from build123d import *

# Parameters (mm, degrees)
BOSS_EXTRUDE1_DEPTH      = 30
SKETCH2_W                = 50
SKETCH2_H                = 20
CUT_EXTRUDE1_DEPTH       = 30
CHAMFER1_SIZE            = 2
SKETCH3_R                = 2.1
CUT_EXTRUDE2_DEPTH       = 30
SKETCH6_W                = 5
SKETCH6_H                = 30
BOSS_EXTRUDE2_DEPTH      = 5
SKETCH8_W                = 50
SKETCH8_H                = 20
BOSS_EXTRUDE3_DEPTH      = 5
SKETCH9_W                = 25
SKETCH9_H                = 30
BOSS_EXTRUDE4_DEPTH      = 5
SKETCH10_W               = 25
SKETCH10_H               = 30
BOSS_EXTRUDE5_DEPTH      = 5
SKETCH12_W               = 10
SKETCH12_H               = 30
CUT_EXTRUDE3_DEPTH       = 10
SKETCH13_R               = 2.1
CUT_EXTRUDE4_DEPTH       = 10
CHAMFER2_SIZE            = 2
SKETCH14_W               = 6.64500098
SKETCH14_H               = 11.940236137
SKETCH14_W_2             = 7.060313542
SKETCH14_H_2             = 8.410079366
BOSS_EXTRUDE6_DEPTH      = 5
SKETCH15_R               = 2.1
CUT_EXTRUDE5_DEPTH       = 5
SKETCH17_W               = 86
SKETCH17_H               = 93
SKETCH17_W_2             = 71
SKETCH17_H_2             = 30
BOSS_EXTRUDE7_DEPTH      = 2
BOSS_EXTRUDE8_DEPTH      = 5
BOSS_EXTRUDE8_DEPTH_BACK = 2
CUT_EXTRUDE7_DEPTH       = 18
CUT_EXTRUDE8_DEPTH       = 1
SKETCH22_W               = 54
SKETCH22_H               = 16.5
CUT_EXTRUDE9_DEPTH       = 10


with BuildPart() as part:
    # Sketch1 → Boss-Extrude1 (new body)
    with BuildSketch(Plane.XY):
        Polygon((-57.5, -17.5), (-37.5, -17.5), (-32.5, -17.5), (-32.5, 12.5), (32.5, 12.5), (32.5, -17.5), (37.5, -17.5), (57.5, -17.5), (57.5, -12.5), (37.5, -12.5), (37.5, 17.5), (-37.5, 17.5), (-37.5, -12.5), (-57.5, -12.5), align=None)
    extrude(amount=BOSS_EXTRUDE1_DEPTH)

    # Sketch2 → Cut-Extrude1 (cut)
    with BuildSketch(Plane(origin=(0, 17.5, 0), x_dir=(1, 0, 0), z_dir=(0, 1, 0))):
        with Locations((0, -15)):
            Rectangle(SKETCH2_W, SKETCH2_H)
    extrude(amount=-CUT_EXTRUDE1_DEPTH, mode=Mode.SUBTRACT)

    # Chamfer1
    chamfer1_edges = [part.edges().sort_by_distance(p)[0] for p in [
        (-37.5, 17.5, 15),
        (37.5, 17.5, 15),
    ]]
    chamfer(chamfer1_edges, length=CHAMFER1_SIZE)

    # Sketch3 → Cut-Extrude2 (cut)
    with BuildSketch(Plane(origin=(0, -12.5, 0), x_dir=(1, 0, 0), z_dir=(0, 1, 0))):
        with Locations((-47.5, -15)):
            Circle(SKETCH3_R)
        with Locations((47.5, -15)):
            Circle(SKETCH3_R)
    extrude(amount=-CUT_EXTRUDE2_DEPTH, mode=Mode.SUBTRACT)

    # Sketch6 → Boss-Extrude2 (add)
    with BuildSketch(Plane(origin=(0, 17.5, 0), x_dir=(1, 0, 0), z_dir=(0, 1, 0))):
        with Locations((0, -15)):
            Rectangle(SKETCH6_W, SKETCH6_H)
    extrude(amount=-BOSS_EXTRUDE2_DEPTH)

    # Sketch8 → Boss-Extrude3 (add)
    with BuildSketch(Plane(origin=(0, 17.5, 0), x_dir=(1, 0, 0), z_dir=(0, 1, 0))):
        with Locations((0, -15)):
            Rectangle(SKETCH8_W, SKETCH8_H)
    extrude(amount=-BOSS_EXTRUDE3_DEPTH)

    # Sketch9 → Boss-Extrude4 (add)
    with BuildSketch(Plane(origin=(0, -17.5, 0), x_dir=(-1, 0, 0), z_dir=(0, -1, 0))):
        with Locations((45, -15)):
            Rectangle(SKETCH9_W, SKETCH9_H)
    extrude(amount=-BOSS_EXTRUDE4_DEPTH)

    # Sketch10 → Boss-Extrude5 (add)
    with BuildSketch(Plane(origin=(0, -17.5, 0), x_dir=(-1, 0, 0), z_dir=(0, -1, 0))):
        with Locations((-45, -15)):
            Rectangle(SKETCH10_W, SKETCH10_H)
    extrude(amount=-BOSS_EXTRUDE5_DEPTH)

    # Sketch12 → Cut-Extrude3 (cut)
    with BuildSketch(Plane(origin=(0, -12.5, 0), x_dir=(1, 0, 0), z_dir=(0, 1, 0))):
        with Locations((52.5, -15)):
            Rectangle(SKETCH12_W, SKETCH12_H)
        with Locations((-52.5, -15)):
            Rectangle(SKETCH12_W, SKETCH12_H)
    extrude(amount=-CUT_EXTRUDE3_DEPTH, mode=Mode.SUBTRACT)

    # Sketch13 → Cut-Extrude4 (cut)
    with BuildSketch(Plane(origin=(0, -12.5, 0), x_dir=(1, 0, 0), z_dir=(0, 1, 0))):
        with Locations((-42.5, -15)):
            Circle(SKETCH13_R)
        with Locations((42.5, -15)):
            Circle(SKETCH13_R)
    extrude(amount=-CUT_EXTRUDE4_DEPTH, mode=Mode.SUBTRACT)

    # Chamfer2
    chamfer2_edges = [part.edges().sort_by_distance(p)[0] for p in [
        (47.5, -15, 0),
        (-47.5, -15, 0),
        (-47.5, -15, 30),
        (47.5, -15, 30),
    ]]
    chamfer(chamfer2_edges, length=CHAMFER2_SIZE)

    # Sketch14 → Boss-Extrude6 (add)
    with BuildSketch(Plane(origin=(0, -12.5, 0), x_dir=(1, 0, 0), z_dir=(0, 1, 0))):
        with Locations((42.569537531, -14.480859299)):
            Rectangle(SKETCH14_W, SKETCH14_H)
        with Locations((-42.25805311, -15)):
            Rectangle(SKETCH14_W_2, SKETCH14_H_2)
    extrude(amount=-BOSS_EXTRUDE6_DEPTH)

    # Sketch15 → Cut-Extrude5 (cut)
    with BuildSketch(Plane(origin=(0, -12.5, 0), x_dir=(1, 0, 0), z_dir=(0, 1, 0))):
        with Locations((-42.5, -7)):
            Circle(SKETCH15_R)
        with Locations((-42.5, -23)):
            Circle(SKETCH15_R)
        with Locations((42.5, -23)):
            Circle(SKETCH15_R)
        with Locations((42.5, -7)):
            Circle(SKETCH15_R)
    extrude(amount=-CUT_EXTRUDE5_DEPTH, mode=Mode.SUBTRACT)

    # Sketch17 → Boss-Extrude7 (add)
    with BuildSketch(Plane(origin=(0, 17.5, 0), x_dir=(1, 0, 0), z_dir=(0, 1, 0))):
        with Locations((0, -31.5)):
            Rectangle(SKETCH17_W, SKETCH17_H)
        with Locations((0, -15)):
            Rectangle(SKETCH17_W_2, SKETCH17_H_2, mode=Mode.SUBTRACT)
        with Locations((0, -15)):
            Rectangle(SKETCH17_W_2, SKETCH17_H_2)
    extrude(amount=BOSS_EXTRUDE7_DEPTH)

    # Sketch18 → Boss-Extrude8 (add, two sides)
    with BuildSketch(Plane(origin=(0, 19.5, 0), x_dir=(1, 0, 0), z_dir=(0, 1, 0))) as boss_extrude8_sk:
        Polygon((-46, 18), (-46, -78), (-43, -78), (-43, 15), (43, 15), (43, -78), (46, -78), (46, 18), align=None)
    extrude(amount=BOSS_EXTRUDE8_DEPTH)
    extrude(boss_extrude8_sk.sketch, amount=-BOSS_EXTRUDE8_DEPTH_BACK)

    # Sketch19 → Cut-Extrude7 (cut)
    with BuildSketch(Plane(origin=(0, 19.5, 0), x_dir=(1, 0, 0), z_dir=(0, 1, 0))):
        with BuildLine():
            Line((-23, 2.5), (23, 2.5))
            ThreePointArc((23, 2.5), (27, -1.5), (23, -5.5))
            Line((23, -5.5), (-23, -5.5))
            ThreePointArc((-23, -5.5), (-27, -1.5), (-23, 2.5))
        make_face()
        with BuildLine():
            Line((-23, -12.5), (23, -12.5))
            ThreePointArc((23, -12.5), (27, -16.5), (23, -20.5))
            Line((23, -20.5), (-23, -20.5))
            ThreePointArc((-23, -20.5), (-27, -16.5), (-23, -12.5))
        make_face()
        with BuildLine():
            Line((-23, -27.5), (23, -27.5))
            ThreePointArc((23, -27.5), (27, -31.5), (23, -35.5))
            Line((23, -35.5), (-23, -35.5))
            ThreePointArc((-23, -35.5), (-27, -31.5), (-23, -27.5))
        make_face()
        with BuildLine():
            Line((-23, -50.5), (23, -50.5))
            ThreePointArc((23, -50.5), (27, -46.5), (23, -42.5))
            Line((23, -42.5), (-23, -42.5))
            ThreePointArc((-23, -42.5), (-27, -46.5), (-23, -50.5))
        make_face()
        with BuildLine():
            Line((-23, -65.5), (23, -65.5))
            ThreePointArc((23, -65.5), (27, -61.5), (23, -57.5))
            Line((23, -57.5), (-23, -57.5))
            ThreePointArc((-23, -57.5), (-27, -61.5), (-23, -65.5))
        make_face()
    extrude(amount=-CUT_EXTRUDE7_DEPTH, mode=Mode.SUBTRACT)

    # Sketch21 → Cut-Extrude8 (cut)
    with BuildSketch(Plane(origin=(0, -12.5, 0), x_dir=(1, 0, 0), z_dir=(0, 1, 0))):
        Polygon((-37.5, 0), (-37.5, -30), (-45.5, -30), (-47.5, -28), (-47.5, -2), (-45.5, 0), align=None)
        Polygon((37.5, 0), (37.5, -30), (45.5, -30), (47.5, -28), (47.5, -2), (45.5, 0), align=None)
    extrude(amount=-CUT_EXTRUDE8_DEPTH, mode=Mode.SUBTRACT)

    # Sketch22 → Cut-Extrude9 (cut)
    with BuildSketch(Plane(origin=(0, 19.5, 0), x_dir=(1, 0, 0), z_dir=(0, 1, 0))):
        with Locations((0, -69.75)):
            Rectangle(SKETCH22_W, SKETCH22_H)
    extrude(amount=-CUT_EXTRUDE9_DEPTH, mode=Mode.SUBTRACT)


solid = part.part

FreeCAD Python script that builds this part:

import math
import FreeCAD as App
import Part
import Sketcher

V = App.Vector
Q = App.Units.Quantity


def edges_at(feature, points):
    """Names of the edges that pass closest to the given points."""
    edges = feature.Shape.Edges
    near = lambda p: min(range(len(edges)), key=lambda i: edges[i].distToShape(Part.Vertex(*p))[0])
    return sorted({f"Edge{near(p) + 1}" for p in points})


def add_polygon(sketch, points):
    """Adds a closed chain of lines whose ends are joined by coincident constraints."""
    first, n = sketch.GeometryCount, len(points)
    for a, b in zip(points, points[1:] + points[:1]):
        sketch.addGeometry(Part.LineSegment(App.Vector(*a, 0), App.Vector(*b, 0)), False)
    for i in range(n):
        sketch.addConstraint(Sketcher.Constraint("Coincident", first + i, 2, first + (i + 1) % n, 1))

doc = App.newDocument("Part")
body = doc.addObject("PartDesign::Body", "Body")

# Sketch on XY plane
sketch1 = doc.addObject("Sketcher::SketchObject", "Sketch")
body.addObject(sketch1)
sketch1.AttachmentSupport = (doc.XY_Plane, [""])
sketch1.MapMode = "FlatFace"
add_polygon(sketch1, [(-58, -18), (-32, -18), (-32, 12), (32, 12), (32, -18), (58, -18), (58, -12), (38, -12), (38, 18), (-38, 18), (-38, -12), (-58, -12)])  # lines 0-11
sketch1.addConstraint(Sketcher.Constraint("Horizontal", 0))
sketch1.addConstraint(Sketcher.Constraint("Vertical", 1))
sketch1.addConstraint(Sketcher.Constraint("Horizontal", 2))
sketch1.addConstraint(Sketcher.Constraint("Vertical", 3))
sketch1.addConstraint(Sketcher.Constraint("Horizontal", 4))
sketch1.addConstraint(Sketcher.Constraint("Vertical", 5))
sketch1.addConstraint(Sketcher.Constraint("Horizontal", 6))
sketch1.addConstraint(Sketcher.Constraint("Vertical", 7))
sketch1.addConstraint(Sketcher.Constraint("Horizontal", 8))
sketch1.addConstraint(Sketcher.Constraint("Vertical", 9))
sketch1.addConstraint(Sketcher.Constraint("Horizontal", 10))
sketch1.addConstraint(Sketcher.Constraint("Vertical", 11))
sketch1.addConstraint(Sketcher.Constraint("Symmetric", 0, 2, 3, 2, -2))
sketch1.addConstraint(Sketcher.Constraint("Symmetric", 6, 2, 9, 2, -2))
sketch1.addConstraint(Sketcher.Constraint("Equal", 0, 4))
sketch1.addConstraint(Sketcher.Constraint("Equal", 3, 7))
sketch1.addConstraint(Sketcher.Constraint("DistanceX", 0, 1, 0, 2, Q("25 mm")))
sketch1.addConstraint(Sketcher.Constraint("DistanceX", 2, 1, 2, 2, Q("65 mm")))
sketch1.addConstraint(Sketcher.Constraint("DistanceX", 6, 2, 6, 1, Q("20 mm")))
sketch1.addConstraint(Sketcher.Constraint("DistanceY", 1, 1, 1, 2, Q("30 mm")))
sketch1.addConstraint(Sketcher.Constraint("DistanceY", 5, 1, 5, 2, Q("5 mm")))
sketch1.addConstraint(Sketcher.Constraint("DistanceY", 0, 2, -1, 1, Q("17.5 mm")))
pad1 = doc.addObject("PartDesign::Pad", "Pad")
body.addObject(pad1)
pad1.Profile = sketch1
pad1.Length = 30

# Sketch on XZ plane
sketch2 = doc.addObject("Sketcher::SketchObject", "Sketch001")
body.addObject(sketch2)
sketch2.AttachmentSupport = (doc.XZ_Plane, [""])
sketch2.MapMode = "FlatFace"
sketch2.AttachmentOffset = App.Placement(V(0, 0, -17.5), App.Rotation())
add_polygon(sketch2, [(-25, 5), (-25, 25), (25, 25), (25, 5)])  # lines 0-3
sketch2.addConstraint(Sketcher.Constraint("Vertical", 0))
sketch2.addConstraint(Sketcher.Constraint("Horizontal", 1))
sketch2.addConstraint(Sketcher.Constraint("Vertical", 2))
sketch2.addConstraint(Sketcher.Constraint("Horizontal", 3))
sketch2.addConstraint(Sketcher.Constraint("DistanceX", 1, 1, 1, 2, Q("50 mm")))
sketch2.addConstraint(Sketcher.Constraint("DistanceY", 0, 1, 0, 2, Q("20 mm")))
sketch2.addConstraint(Sketcher.Constraint("DistanceX", 0, 2, -1, 1, Q("25 mm")))
sketch2.addConstraint(Sketcher.Constraint("DistanceY", -1, 1, 0, 2, Q("25 mm")))
pocket1 = doc.addObject("PartDesign::Pocket", "Pocket")
body.addObject(pocket1)
pocket1.Profile = sketch2
pocket1.Length = 30
pocket1.Reversed = True
doc.recompute()

chamfer = doc.addObject("PartDesign::Chamfer", "Chamfer")
body.addObject(chamfer)
chamfer.Base = (pocket1, edges_at(pocket1, [(-37.5, 17.5, 15), (37.5, 17.5, 15)]))
chamfer.Size = 2

# Sketch on XZ plane
sketch3 = doc.addObject("Sketcher::SketchObject", "Sketch002")
body.addObject(sketch3)
sketch3.AttachmentSupport = (doc.XZ_Plane, [""])
sketch3.MapMode = "FlatFace"
sketch3.AttachmentOffset = App.Placement(V(0, 0, 12.5), App.Rotation())
sketch3.addGeometry(Part.Circle(V(-47.5, 15, 0), V(0, 0, 1), 2.1), False)
sketch3.addGeometry(Part.Circle(V(47.5, 15, 0), V(0, 0, 1), 2.1), False)
sketch3.addConstraint(Sketcher.Constraint("Equal", 0, 1))
sketch3.addConstraint(Sketcher.Constraint("Symmetric", 0, 3, 1, 3, -2))
sketch3.addConstraint(Sketcher.Constraint("Diameter", 0, Q("4.2 mm")))
sketch3.addConstraint(Sketcher.Constraint("DistanceY", -1, 1, 0, 3, Q("15 mm")))
sketch3.addConstraint(Sketcher.Constraint("DistanceX", 0, 3, 1, 3, Q("95 mm")))
pocket2 = doc.addObject("PartDesign::Pocket", "Pocket001")
body.addObject(pocket2)
pocket2.Profile = sketch3
pocket2.Length = 30
pocket2.Reversed = True

# Sketch on XZ plane
sketch4 = doc.addObject("Sketcher::SketchObject", "Sketch003")
body.addObject(sketch4)
sketch4.AttachmentSupport = (doc.XZ_Plane, [""])
sketch4.MapMode = "FlatFace"
sketch4.AttachmentOffset = App.Placement(V(0, 0, -17.5), App.Rotation())
add_polygon(sketch4, [(-2, 0), (-2, 30), (2, 30), (2, 0)])  # lines 0-3
sketch4.addConstraint(Sketcher.Constraint("Vertical", 0))
sketch4.addConstraint(Sketcher.Constraint("Horizontal", 1))
sketch4.addConstraint(Sketcher.Constraint("Vertical", 2))
sketch4.addConstraint(Sketcher.Constraint("Horizontal", 3))
sketch4.addConstraint(Sketcher.Constraint("Symmetric", 2, 2, 3, 2, -1, 1))
sketch4.addConstraint(Sketcher.Constraint("DistanceX", 1, 1, 1, 2, Q("5 mm")))
sketch4.addConstraint(Sketcher.Constraint("DistanceY", 0, 1, 0, 2, Q("30 mm")))
pad2 = doc.addObject("PartDesign::Pad", "Pad001")
body.addObject(pad2)
pad2.Profile = sketch4
pad2.Length = 5

# Sketch on XZ plane
sketch5 = doc.addObject("Sketcher::SketchObject", "Sketch004")
body.addObject(sketch5)
sketch5.AttachmentSupport = (doc.XZ_Plane, [""])
sketch5.MapMode = "FlatFace"
sketch5.AttachmentOffset = App.Placement(V(0, 0, -17.5), App.Rotation())
add_polygon(sketch5, [(-25, 5), (-25, 25), (25, 25), (25, 5)])  # lines 0-3
sketch5.addConstraint(Sketcher.Constraint("Vertical", 0))
sketch5.addConstraint(Sketcher.Constraint("Horizontal", 1))
sketch5.addConstraint(Sketcher.Constraint("Vertical", 2))
sketch5.addConstraint(Sketcher.Constraint("Horizontal", 3))
sketch5.addConstraint(Sketcher.Constraint("DistanceX", 1, 1, 1, 2, Q("50 mm")))
sketch5.addConstraint(Sketcher.Constraint("DistanceY", 0, 1, 0, 2, Q("20 mm")))
sketch5.addConstraint(Sketcher.Constraint("DistanceX", 0, 2, -1, 1, Q("25 mm")))
sketch5.addConstraint(Sketcher.Constraint("DistanceY", -1, 1, 0, 2, Q("25 mm")))
pad3 = doc.addObject("PartDesign::Pad", "Pad002")
body.addObject(pad3)
pad3.Profile = sketch5
pad3.Length = 5

# Sketch on XZ plane
sketch6 = doc.addObject("Sketcher::SketchObject", "Sketch005")
body.addObject(sketch6)
sketch6.AttachmentSupport = (doc.XZ_Plane, [""])
sketch6.MapMode = "FlatFace"
sketch6.AttachmentOffset = App.Placement(V(0, 0, 17.5), App.Rotation())
add_polygon(sketch6, [(-32, 0), (-32, 30), (-58, 30), (-58, 0)])  # lines 0-3
sketch6.addConstraint(Sketcher.Constraint("Vertical", 0))
sketch6.addConstraint(Sketcher.Constraint("Horizontal", 1))
sketch6.addConstraint(Sketcher.Constraint("Vertical", 2))
sketch6.addConstraint(Sketcher.Constraint("Horizontal", 3))
sketch6.addConstraint(Sketcher.Constraint("PointOnObject", 2, 2, -1))
sketch6.addConstraint(Sketcher.Constraint("DistanceX", 1, 2, 1, 1, Q("25 mm")))
sketch6.addConstraint(Sketcher.Constraint("DistanceY", 0, 1, 0, 2, Q("30 mm")))
sketch6.addConstraint(Sketcher.Constraint("DistanceX", 0, 2, -1, 1, Q("32.5 mm")))
pad4 = doc.addObject("PartDesign::Pad", "Pad003")
body.addObject(pad4)
pad4.Profile = sketch6
pad4.Length = 5
pad4.Reversed = True

# Sketch on XZ plane
sketch7 = doc.addObject("Sketcher::SketchObject", "Sketch006")
body.addObject(sketch7)
sketch7.AttachmentSupport = (doc.XZ_Plane, [""])
sketch7.MapMode = "FlatFace"
sketch7.AttachmentOffset = App.Placement(V(0, 0, 17.5), App.Rotation())
add_polygon(sketch7, [(58, 0), (58, 30), (32, 30), (32, 0)])  # lines 0-3
sketch7.addConstraint(Sketcher.Constraint("Vertical", 0))
sketch7.addConstraint(Sketcher.Constraint("Horizontal", 1))
sketch7.addConstraint(Sketcher.Constraint("Vertical", 2))
sketch7.addConstraint(Sketcher.Constraint("Horizontal", 3))
sketch7.addConstraint(Sketcher.Constraint("PointOnObject", 2, 2, -1))
sketch7.addConstraint(Sketcher.Constraint("DistanceX", 1, 2, 1, 1, Q("25 mm")))
sketch7.addConstraint(Sketcher.Constraint("DistanceY", 0, 1, 0, 2, Q("30 mm")))
sketch7.addConstraint(Sketcher.Constraint("DistanceX", -1, 1, 0, 2, Q("57.5 mm")))
pad5 = doc.addObject("PartDesign::Pad", "Pad004")
body.addObject(pad5)
pad5.Profile = sketch7
pad5.Length = 5
pad5.Reversed = True

# Sketch on XZ plane
sketch8 = doc.addObject("Sketcher::SketchObject", "Sketch007")
body.addObject(sketch8)
sketch8.AttachmentSupport = (doc.XZ_Plane, [""])
sketch8.MapMode = "FlatFace"
sketch8.AttachmentOffset = App.Placement(V(0, 0, 12.5), App.Rotation())
add_polygon(sketch8, [(48, 0), (48, 30), (58, 30), (58, 0)])  # lines 0-3
add_polygon(sketch8, [(-58, 0), (-58, 30), (-48, 30), (-48, 0)])  # lines 4-7
sketch8.addConstraint(Sketcher.Constraint("Vertical", 0))
sketch8.addConstraint(Sketcher.Constraint("Horizontal", 1))
sketch8.addConstraint(Sketcher.Constraint("Vertical", 2))
sketch8.addConstraint(Sketcher.Constraint("Horizontal", 3))
sketch8.addConstraint(Sketcher.Constraint("Vertical", 4))
sketch8.addConstraint(Sketcher.Constraint("Horizontal", 5))
sketch8.addConstraint(Sketcher.Constraint("Vertical", 6))
sketch8.addConstraint(Sketcher.Constraint("Horizontal", 7))
sketch8.addConstraint(Sketcher.Constraint("Symmetric", 3, 2, 6, 2, -1, 1))
sketch8.addConstraint(Sketcher.Constraint("Symmetric", 1, 2, 4, 2, -2))
sketch8.addConstraint(Sketcher.Constraint("PointOnObject", 2, 2, -1))
sketch8.addConstraint(Sketcher.Constraint("DistanceX", 1, 1, 1, 2, Q("10 mm")))
sketch8.addConstraint(Sketcher.Constraint("DistanceY", 0, 1, 0, 2, Q("30 mm")))
sketch8.addConstraint(Sketcher.Constraint("DistanceX", 4, 2, 0, 2, Q("105 mm")))
pocket3 = doc.addObject("PartDesign::Pocket", "Pocket002")
body.addObject(pocket3)
pocket3.Profile = sketch8
pocket3.Length = 10
pocket3.Reversed = True

# Sketch on XZ plane
sketch9 = doc.addObject("Sketcher::SketchObject", "Sketch008")
body.addObject(sketch9)
sketch9.AttachmentSupport = (doc.XZ_Plane, [""])
sketch9.MapMode = "FlatFace"
sketch9.AttachmentOffset = App.Placement(V(0, 0, 12.5), App.Rotation())
sketch9.addGeometry(Part.Circle(V(-42.5, 15, 0), V(0, 0, 1), 2.1), False)
sketch9.addGeometry(Part.Circle(V(42.5, 15, 0), V(0, 0, 1), 2.1), False)
sketch9.addConstraint(Sketcher.Constraint("Equal", 0, 1))
sketch9.addConstraint(Sketcher.Constraint("Symmetric", 0, 3, 1, 3, -2))
sketch9.addConstraint(Sketcher.Constraint("Diameter", 0, Q("4.2 mm")))
sketch9.addConstraint(Sketcher.Constraint("DistanceY", -1, 1, 0, 3, Q("15 mm")))
sketch9.addConstraint(Sketcher.Constraint("DistanceX", 0, 3, 1, 3, Q("85 mm")))
pocket4 = doc.addObject("PartDesign::Pocket", "Pocket003")
body.addObject(pocket4)
pocket4.Profile = sketch9
pocket4.Length = 10
pocket4.Reversed = True
doc.recompute()

chamfer2 = doc.addObject("PartDesign::Chamfer", "Chamfer001")
body.addObject(chamfer2)
chamfer2.Base = (pocket4, edges_at(pocket4, [
    (47.5, -15, 0),
    (-47.5, -15, 0),
    (-47.5, -15, 30),
    (47.5, -15, 30),
]))
chamfer2.Size = 2

# Sketch on XZ plane
sketch10 = doc.addObject("Sketcher::SketchObject", "Sketch009")
body.addObject(sketch10)
sketch10.AttachmentSupport = (doc.XZ_Plane, [""])
sketch10.MapMode = "FlatFace"
sketch10.AttachmentOffset = App.Placement(V(0, 0, 12.5), App.Rotation())
add_polygon(sketch10, [(39, 9), (39, 20), (46, 20), (46, 9)])  # lines 0-3
add_polygon(sketch10, [(-46, 11), (-46, 19), (-39, 19), (-39, 11)])  # lines 4-7
sketch10.addConstraint(Sketcher.Constraint("Vertical", 0))
sketch10.addConstraint(Sketcher.Constraint("Horizontal", 1))
sketch10.addConstraint(Sketcher.Constraint("Vertical", 2))
sketch10.addConstraint(Sketcher.Constraint("Horizontal", 3))
sketch10.addConstraint(Sketcher.Constraint("Vertical", 4))
sketch10.addConstraint(Sketcher.Constraint("Horizontal", 5))
sketch10.addConstraint(Sketcher.Constraint("Vertical", 6))
sketch10.addConstraint(Sketcher.Constraint("Horizontal", 7))
sketch10.addConstraint(Sketcher.Constraint("DistanceX", 1, 1, 1, 2, Q("6.645001 mm")))
sketch10.addConstraint(Sketcher.Constraint("DistanceY", 4, 1, 4, 2, Q("8.410079 mm")))
sketch10.addConstraint(Sketcher.Constraint("DistanceY", 3, 2, 4, 2, Q("10.694298 mm")))
sketch10.addConstraint(Sketcher.Constraint("DistanceX", 5, 1, 5, 2, Q("7.060314 mm")))
sketch10.addConstraint(Sketcher.Constraint("DistanceY", 0, 1, 0, 2, Q("11.940236 mm")))
sketch10.addConstraint(Sketcher.Constraint("DistanceX", -1, 1, 1, 2, Q("45.892038 mm")))
sketch10.addConstraint(Sketcher.Constraint("DistanceY", -1, 1, 2, 2, Q("8.510741 mm")))
sketch10.addConstraint(Sketcher.Constraint("DistanceX", 4, 2, -1, 1, Q("45.78821 mm")))
pad6 = doc.addObject("PartDesign::Pad", "Pad005")
body.addObject(pad6)
pad6.Profile = sketch10
pad6.Length = 5

# Sketch on XZ plane
sketch11 = doc.addObject("Sketcher::SketchObject", "Sketch010")
body.addObject(sketch11)
sketch11.AttachmentSupport = (doc.XZ_Plane, [""])
sketch11.MapMode = "FlatFace"
sketch11.AttachmentOffset = App.Placement(V(0, 0, 12.5), App.Rotation())
sketch11.addGeometry(Part.Circle(V(-42.5, 7, 0), V(0, 0, 1), 2.1), False)
sketch11.addGeometry(Part.Circle(V(-42.5, 23, 0), V(0, 0, 1), 2.1), False)
sketch11.addGeometry(Part.Circle(V(42.5, 23, 0), V(0, 0, 1), 2.1), False)
sketch11.addGeometry(Part.Circle(V(42.5, 7, 0), V(0, 0, 1), 2.1), False)
sketch11.addConstraint(Sketcher.Constraint("Equal", 0, 1))
sketch11.addConstraint(Sketcher.Constraint("Equal", 1, 2))
sketch11.addConstraint(Sketcher.Constraint("Equal", 2, 3))
sketch11.addConstraint(Sketcher.Constraint("Symmetric", 1, 3, 2, 3, -2))
sketch11.addConstraint(Sketcher.Constraint("Symmetric", 0, 3, 3, 3, -2))
sketch11.addConstraint(Sketcher.Constraint("Vertical", 0, 3, 1, 3))
sketch11.addConstraint(Sketcher.Constraint("Diameter", 0, Q("4.2 mm")))
sketch11.addConstraint(Sketcher.Constraint("DistanceY", -1, 1, 0, 3, Q("7 mm")))
sketch11.addConstraint(Sketcher.Constraint("DistanceY", -1, 1, 1, 3, Q("23 mm")))
sketch11.addConstraint(Sketcher.Constraint("DistanceX", 1, 3, 2, 3, Q("85 mm")))
pocket5 = doc.addObject("PartDesign::Pocket", "Pocket004")
body.addObject(pocket5)
pocket5.Profile = sketch11
pocket5.Length = 5
pocket5.Reversed = True

# Sketch on XZ plane
sketch12 = doc.addObject("Sketcher::SketchObject", "Sketch011")
body.addObject(sketch12)
sketch12.AttachmentSupport = (doc.XZ_Plane, [""])
sketch12.MapMode = "FlatFace"
sketch12.AttachmentOffset = App.Placement(V(0, 0, -17.5), App.Rotation())
add_polygon(sketch12, [(-43, -15), (-43, 78), (43, 78), (43, -15)])  # lines 0-3
sketch12.addConstraint(Sketcher.Constraint("Vertical", 0))
sketch12.addConstraint(Sketcher.Constraint("Horizontal", 1))
sketch12.addConstraint(Sketcher.Constraint("Vertical", 2))
sketch12.addConstraint(Sketcher.Constraint("Horizontal", 3))
sketch12.addConstraint(Sketcher.Constraint("DistanceX", 1, 1, 1, 2, Q("86 mm")))
sketch12.addConstraint(Sketcher.Constraint("DistanceY", 0, 1, 0, 2, Q("93 mm")))
sketch12.addConstraint(Sketcher.Constraint("DistanceX", 0, 2, -1, 1, Q("43 mm")))
sketch12.addConstraint(Sketcher.Constraint("DistanceY", -1, 1, 0, 2, Q("78 mm")))
pad7 = doc.addObject("PartDesign::Pad", "Pad006")
body.addObject(pad7)
pad7.Profile = sketch12
pad7.Length = 2
pad7.Reversed = True

# Sketch on XZ plane
sketch13 = doc.addObject("Sketcher::SketchObject", "Sketch012")
body.addObject(sketch13)
sketch13.AttachmentSupport = (doc.XZ_Plane, [""])
sketch13.MapMode = "FlatFace"
sketch13.AttachmentOffset = App.Placement(V(0, 0, -19.5), App.Rotation())
add_polygon(sketch13, [(-46, -18), (-46, 78), (-43, 78), (-43, -15), (43, -15), (43, 78), (46, 78), (46, -18)])  # lines 0-7
sketch13.addConstraint(Sketcher.Constraint("Vertical", 0))
sketch13.addConstraint(Sketcher.Constraint("Horizontal", 1))
sketch13.addConstraint(Sketcher.Constraint("Vertical", 2))
sketch13.addConstraint(Sketcher.Constraint("Horizontal", 3))
sketch13.addConstraint(Sketcher.Constraint("Vertical", 4))
sketch13.addConstraint(Sketcher.Constraint("Horizontal", 5))
sketch13.addConstraint(Sketcher.Constraint("Vertical", 6))
sketch13.addConstraint(Sketcher.Constraint("Horizontal", 7))
sketch13.addConstraint(Sketcher.Constraint("Symmetric", 1, 2, 4, 2, -2))
sketch13.addConstraint(Sketcher.Constraint("Equal", 1, 5))
sketch13.addConstraint(Sketcher.Constraint("DistanceX", 1, 1, 1, 2, Q("3 mm")))
sketch13.addConstraint(Sketcher.Constraint("DistanceX", 3, 1, 3, 2, Q("86 mm")))
sketch13.addConstraint(Sketcher.Constraint("DistanceY", 0, 1, 0, 2, Q("96 mm")))
sketch13.addConstraint(Sketcher.Constraint("DistanceY", 2, 2, 2, 1, Q("93 mm")))
sketch13.addConstraint(Sketcher.Constraint("DistanceY", -1, 1, 0, 2, Q("78 mm")))
pad8 = doc.addObject("PartDesign::Pad", "Pad007")
body.addObject(pad8)
pad8.Profile = sketch13
pad8.Type = "TwoLengths"
pad8.Length = 5
pad8.Length2 = 2
pad8.Reversed = True

# Sketch on XZ plane
sketch14 = doc.addObject("Sketcher::SketchObject", "Sketch013")
body.addObject(sketch14)
sketch14.AttachmentSupport = (doc.XZ_Plane, [""])
sketch14.MapMode = "FlatFace"
sketch14.AttachmentOffset = App.Placement(V(0, 0, -19.5), App.Rotation())
sketch14.addGeometry(Part.LineSegment(V(23, -2.5, 0), V(-23, -2.5, 0)), False)
sketch14.addGeometry(Part.ArcOfCircle(Part.Circle(V(-23, 1.5, 0), V(0, 0, 1), 4), math.radians(90), math.radians(270)), False)
sketch14.addGeometry(Part.LineSegment(V(-23, 5.5, 0), V(23, 5.5, 0)), False)
sketch14.addGeometry(Part.ArcOfCircle(Part.Circle(V(23, 1.5, 0), V(0, 0, 1), 4), math.radians(-90), math.radians(90)), False)
sketch14.addGeometry(Part.LineSegment(V(23, 12.5, 0), V(-23, 12.5, 0)), False)
sketch14.addGeometry(Part.ArcOfCircle(Part.Circle(V(-23, 16.5, 0), V(0, 0, 1), 4), math.radians(90), math.radians(270)), False)
sketch14.addGeometry(Part.LineSegment(V(-23, 20.5, 0), V(23, 20.5, 0)), False)
sketch14.addGeometry(Part.ArcOfCircle(Part.Circle(V(23, 16.5, 0), V(0, 0, 1), 4), math.radians(-90), math.radians(90)), False)
sketch14.addGeometry(Part.LineSegment(V(23, 27.5, 0), V(-23, 27.5, 0)), False)
sketch14.addGeometry(Part.ArcOfCircle(Part.Circle(V(-23, 31.5, 0), V(0, 0, 1), 4), math.radians(90), math.radians(270)), False)
sketch14.addGeometry(Part.LineSegment(V(-23, 35.5, 0), V(23, 35.5, 0)), False)
sketch14.addGeometry(Part.ArcOfCircle(Part.Circle(V(23, 31.5, 0), V(0, 0, 1), 4), math.radians(-90), math.radians(90)), False)
sketch14.addGeometry(Part.LineSegment(V(-23, 50.5, 0), V(23, 50.5, 0)), False)
sketch14.addGeometry(Part.ArcOfCircle(Part.Circle(V(23, 46.5, 0), V(0, 0, 1), 4), math.radians(-90), math.radians(90)), False)
sketch14.addGeometry(Part.LineSegment(V(23, 42.5, 0), V(-23, 42.5, 0)), False)
sketch14.addGeometry(Part.ArcOfCircle(Part.Circle(V(-23, 46.5, 0), V(0, 0, 1), 4), math.radians(90), math.radians(270)), False)
sketch14.addGeometry(Part.LineSegment(V(-23, 65.5, 0), V(23, 65.5, 0)), False)
sketch14.addGeometry(Part.ArcOfCircle(Part.Circle(V(23, 61.5, 0), V(0, 0, 1), 4), math.radians(-90), math.radians(90)), False)
sketch14.addGeometry(Part.LineSegment(V(23, 57.5, 0), V(-23, 57.5, 0)), False)
sketch14.addGeometry(Part.ArcOfCircle(Part.Circle(V(-23, 61.5, 0), V(0, 0, 1), 4), math.radians(90), math.radians(270)), False)
sketch14.addConstraint(Sketcher.Constraint("Tangent", 0, 2, 1, 2))
sketch14.addConstraint(Sketcher.Constraint("Tangent", 1, 1, 2, 1))
sketch14.addConstraint(Sketcher.Constraint("Tangent", 2, 2, 3, 2))
sketch14.addConstraint(Sketcher.Constraint("Tangent", 3, 1, 0, 1))
sketch14.addConstraint(Sketcher.Constraint("Tangent", 4, 2, 5, 2))
sketch14.addConstraint(Sketcher.Constraint("Tangent", 5, 1, 6, 1))
sketch14.addConstraint(Sketcher.Constraint("Tangent", 6, 2, 7, 2))
sketch14.addConstraint(Sketcher.Constraint("Tangent", 7, 1, 4, 1))
sketch14.addConstraint(Sketcher.Constraint("Tangent", 8, 2, 9, 2))
sketch14.addConstraint(Sketcher.Constraint("Tangent", 9, 1, 10, 1))
sketch14.addConstraint(Sketcher.Constraint("Tangent", 10, 2, 11, 2))
sketch14.addConstraint(Sketcher.Constraint("Tangent", 11, 1, 8, 1))
sketch14.addConstraint(Sketcher.Constraint("Tangent", 12, 2, 13, 2))
sketch14.addConstraint(Sketcher.Constraint("Tangent", 13, 1, 14, 1))
sketch14.addConstraint(Sketcher.Constraint("Tangent", 14, 2, 15, 2))
sketch14.addConstraint(Sketcher.Constraint("Tangent", 15, 1, 12, 1))
sketch14.addConstraint(Sketcher.Constraint("Tangent", 16, 2, 17, 2))
sketch14.addConstraint(Sketcher.Constraint("Tangent", 17, 1, 18, 1))
sketch14.addConstraint(Sketcher.Constraint("Tangent", 18, 2, 19, 2))
sketch14.addConstraint(Sketcher.Constraint("Tangent", 19, 1, 16, 1))
sketch14.addConstraint(Sketcher.Constraint("Horizontal", 0))
sketch14.addConstraint(Sketcher.Constraint("Horizontal", 2))
sketch14.addConstraint(Sketcher.Constraint("Horizontal", 4))
sketch14.addConstraint(Sketcher.Constraint("Horizontal", 6))
sketch14.addConstraint(Sketcher.Constraint("Horizontal", 8))
sketch14.addConstraint(Sketcher.Constraint("Horizontal", 10))
sketch14.addConstraint(Sketcher.Constraint("Horizontal", 12))
sketch14.addConstraint(Sketcher.Constraint("Horizontal", 14))
sketch14.addConstraint(Sketcher.Constraint("Horizontal", 16))
sketch14.addConstraint(Sketcher.Constraint("Horizontal", 18))
sketch14.addConstraint(Sketcher.Constraint("Equal", 3, 5))
sketch14.addConstraint(Sketcher.Constraint("Equal", 7, 9))
sketch14.addConstraint(Sketcher.Constraint("Equal", 11, 13))
sketch14.addConstraint(Sketcher.Constraint("Equal", 15, 17))
sketch14.addConstraint(Sketcher.Constraint("Vertical", 1, 3, 5, 3))
sketch14.addConstraint(Sketcher.Constraint("Vertical", 3, 3, 7, 3))
sketch14.addConstraint(Sketcher.Constraint("Vertical", 5, 3, 9, 3))
sketch14.addConstraint(Sketcher.Constraint("Vertical", 7, 3, 11, 3))
sketch14.addConstraint(Sketcher.Constraint("Vertical", 11, 3, 13, 3))
sketch14.addConstraint(Sketcher.Constraint("Vertical", 9, 3, 15, 3))
sketch14.addConstraint(Sketcher.Constraint("Vertical", 13, 3, 17, 3))
sketch14.addConstraint(Sketcher.Constraint("Vertical", 15, 3, 19, 3))
sketch14.addConstraint(Sketcher.Constraint("Radius", 1, Q("4 mm")))
sketch14.addConstraint(Sketcher.Constraint("DistanceX", 0, 2, 0, 1, Q("46 mm")))
sketch14.addConstraint(Sketcher.Constraint("DistanceX", 1, 3, -1, 1, Q("23 mm")))
sketch14.addConstraint(Sketcher.Constraint("DistanceY", 1, 3, 5, 3, Q("15 mm")))
sketch14.addConstraint(Sketcher.Constraint("DistanceY", 5, 3, 9, 3, Q("15 mm")))
sketch14.addConstraint(Sketcher.Constraint("DistanceY", 11, 3, 13, 3, Q("15 mm")))
sketch14.addConstraint(Sketcher.Constraint("DistanceY", 13, 3, 17, 3, Q("15 mm")))
sketch14.addConstraint(Sketcher.Constraint("DistanceY", -1, 1, 1, 3, Q("1.5 mm")))
pocket6 = doc.addObject("PartDesign::Pocket", "Pocket005")
body.addObject(pocket6)
pocket6.Profile = sketch14
pocket6.Length = 18
pocket6.Reversed = True

# Sketch on XZ plane
sketch15 = doc.addObject("Sketcher::SketchObject", "Sketch014")
body.addObject(sketch15)
sketch15.AttachmentSupport = (doc.XZ_Plane, [""])
sketch15.MapMode = "FlatFace"
sketch15.AttachmentOffset = App.Placement(V(0, 0, 12.5), App.Rotation())
add_polygon(sketch15, [(-37.5, 30), (-37.5, 0), (-45.5, 0), (-47.5, 2), (-47.5, 28), (-45.5, 30)])  # lines 0-5
add_polygon(sketch15, [(37.5, 0), (37.5, 30), (45.5, 30), (47.5, 28), (47.5, 2), (45.5, 0)])  # lines 6-11
sketch15.addConstraint(Sketcher.Constraint("Vertical", 0))
sketch15.addConstraint(Sketcher.Constraint("Horizontal", 1))
sketch15.addConstraint(Sketcher.Constraint("Vertical", 3))
sketch15.addConstraint(Sketcher.Constraint("Horizontal", 5))
sketch15.addConstraint(Sketcher.Constraint("Vertical", 6))
sketch15.addConstraint(Sketcher.Constraint("Horizontal", 7))
sketch15.addConstraint(Sketcher.Constraint("Vertical", 9))
sketch15.addConstraint(Sketcher.Constraint("Horizontal", 11))
sketch15.addConstraint(Sketcher.Constraint("Symmetric", 1, 2, 10, 2, -1, 1))
sketch15.addConstraint(Sketcher.Constraint("Symmetric", 5, 2, 6, 2, -2))
sketch15.addConstraint(Sketcher.Constraint("Symmetric", 3, 2, 8, 2, -2))
sketch15.addConstraint(Sketcher.Constraint("PointOnObject", 0, 2, -1))
sketch15.addConstraint(Sketcher.Constraint("Perpendicular", 2, 4))
sketch15.addConstraint(Sketcher.Constraint("Perpendicular", 4, 8))
sketch15.addConstraint(Sketcher.Constraint("Perpendicular", 8, 10))
sketch15.addConstraint(Sketcher.Constraint("Horizontal", 2, 2, 9, 2))
sketch15.addConstraint(Sketcher.Constraint("Vertical", 1, 2, 4, 2))
sketch15.addConstraint(Sketcher.Constraint("DistanceX", 1, 2, 1, 1, Q("8 mm")))
sketch15.addConstraint(Sketcher.Constraint("DistanceY", 0, 2, 0, 1, Q("30 mm")))
sketch15.addConstraint(Sketcher.Constraint("DistanceY", 3, 1, 3, 2, Q("26 mm")))
sketch15.addConstraint(Sketcher.Constraint("DistanceX", 5, 2, 6, 2, Q("75 mm")))
pocket7 = doc.addObject("PartDesign::Pocket", "Pocket006")
body.addObject(pocket7)
pocket7.Profile = sketch15
pocket7.Length = 1
pocket7.Reversed = True

# Sketch on XZ plane
sketch16 = doc.addObject("Sketcher::SketchObject", "Sketch015")
body.addObject(sketch16)
sketch16.AttachmentSupport = (doc.XZ_Plane, [""])
sketch16.MapMode = "FlatFace"
sketch16.AttachmentOffset = App.Placement(V(0, 0, -19.5), App.Rotation())
add_polygon(sketch16, [(-27, 62), (-27, 78), (27, 78), (27, 62)])  # lines 0-3
sketch16.addConstraint(Sketcher.Constraint("Vertical", 0))
sketch16.addConstraint(Sketcher.Constraint("Horizontal", 1))
sketch16.addConstraint(Sketcher.Constraint("Vertical", 2))
sketch16.addConstraint(Sketcher.Constraint("Horizontal", 3))
sketch16.addConstraint(Sketcher.Constraint("DistanceX", 1, 1, 1, 2, Q("54 mm")))
sketch16.addConstraint(Sketcher.Constraint("DistanceY", 0, 1, 0, 2, Q("16.5 mm")))
sketch16.addConstraint(Sketcher.Constraint("DistanceX", 0, 2, -1, 1, Q("27 mm")))
sketch16.addConstraint(Sketcher.Constraint("DistanceY", -1, 1, 0, 2, Q("78 mm")))
pocket8 = doc.addObject("PartDesign::Pocket", "Pocket007")
body.addObject(pocket8)
pocket8.Profile = sketch16
pocket8.Length = 10
pocket8.Reversed = True

doc.recompute()
